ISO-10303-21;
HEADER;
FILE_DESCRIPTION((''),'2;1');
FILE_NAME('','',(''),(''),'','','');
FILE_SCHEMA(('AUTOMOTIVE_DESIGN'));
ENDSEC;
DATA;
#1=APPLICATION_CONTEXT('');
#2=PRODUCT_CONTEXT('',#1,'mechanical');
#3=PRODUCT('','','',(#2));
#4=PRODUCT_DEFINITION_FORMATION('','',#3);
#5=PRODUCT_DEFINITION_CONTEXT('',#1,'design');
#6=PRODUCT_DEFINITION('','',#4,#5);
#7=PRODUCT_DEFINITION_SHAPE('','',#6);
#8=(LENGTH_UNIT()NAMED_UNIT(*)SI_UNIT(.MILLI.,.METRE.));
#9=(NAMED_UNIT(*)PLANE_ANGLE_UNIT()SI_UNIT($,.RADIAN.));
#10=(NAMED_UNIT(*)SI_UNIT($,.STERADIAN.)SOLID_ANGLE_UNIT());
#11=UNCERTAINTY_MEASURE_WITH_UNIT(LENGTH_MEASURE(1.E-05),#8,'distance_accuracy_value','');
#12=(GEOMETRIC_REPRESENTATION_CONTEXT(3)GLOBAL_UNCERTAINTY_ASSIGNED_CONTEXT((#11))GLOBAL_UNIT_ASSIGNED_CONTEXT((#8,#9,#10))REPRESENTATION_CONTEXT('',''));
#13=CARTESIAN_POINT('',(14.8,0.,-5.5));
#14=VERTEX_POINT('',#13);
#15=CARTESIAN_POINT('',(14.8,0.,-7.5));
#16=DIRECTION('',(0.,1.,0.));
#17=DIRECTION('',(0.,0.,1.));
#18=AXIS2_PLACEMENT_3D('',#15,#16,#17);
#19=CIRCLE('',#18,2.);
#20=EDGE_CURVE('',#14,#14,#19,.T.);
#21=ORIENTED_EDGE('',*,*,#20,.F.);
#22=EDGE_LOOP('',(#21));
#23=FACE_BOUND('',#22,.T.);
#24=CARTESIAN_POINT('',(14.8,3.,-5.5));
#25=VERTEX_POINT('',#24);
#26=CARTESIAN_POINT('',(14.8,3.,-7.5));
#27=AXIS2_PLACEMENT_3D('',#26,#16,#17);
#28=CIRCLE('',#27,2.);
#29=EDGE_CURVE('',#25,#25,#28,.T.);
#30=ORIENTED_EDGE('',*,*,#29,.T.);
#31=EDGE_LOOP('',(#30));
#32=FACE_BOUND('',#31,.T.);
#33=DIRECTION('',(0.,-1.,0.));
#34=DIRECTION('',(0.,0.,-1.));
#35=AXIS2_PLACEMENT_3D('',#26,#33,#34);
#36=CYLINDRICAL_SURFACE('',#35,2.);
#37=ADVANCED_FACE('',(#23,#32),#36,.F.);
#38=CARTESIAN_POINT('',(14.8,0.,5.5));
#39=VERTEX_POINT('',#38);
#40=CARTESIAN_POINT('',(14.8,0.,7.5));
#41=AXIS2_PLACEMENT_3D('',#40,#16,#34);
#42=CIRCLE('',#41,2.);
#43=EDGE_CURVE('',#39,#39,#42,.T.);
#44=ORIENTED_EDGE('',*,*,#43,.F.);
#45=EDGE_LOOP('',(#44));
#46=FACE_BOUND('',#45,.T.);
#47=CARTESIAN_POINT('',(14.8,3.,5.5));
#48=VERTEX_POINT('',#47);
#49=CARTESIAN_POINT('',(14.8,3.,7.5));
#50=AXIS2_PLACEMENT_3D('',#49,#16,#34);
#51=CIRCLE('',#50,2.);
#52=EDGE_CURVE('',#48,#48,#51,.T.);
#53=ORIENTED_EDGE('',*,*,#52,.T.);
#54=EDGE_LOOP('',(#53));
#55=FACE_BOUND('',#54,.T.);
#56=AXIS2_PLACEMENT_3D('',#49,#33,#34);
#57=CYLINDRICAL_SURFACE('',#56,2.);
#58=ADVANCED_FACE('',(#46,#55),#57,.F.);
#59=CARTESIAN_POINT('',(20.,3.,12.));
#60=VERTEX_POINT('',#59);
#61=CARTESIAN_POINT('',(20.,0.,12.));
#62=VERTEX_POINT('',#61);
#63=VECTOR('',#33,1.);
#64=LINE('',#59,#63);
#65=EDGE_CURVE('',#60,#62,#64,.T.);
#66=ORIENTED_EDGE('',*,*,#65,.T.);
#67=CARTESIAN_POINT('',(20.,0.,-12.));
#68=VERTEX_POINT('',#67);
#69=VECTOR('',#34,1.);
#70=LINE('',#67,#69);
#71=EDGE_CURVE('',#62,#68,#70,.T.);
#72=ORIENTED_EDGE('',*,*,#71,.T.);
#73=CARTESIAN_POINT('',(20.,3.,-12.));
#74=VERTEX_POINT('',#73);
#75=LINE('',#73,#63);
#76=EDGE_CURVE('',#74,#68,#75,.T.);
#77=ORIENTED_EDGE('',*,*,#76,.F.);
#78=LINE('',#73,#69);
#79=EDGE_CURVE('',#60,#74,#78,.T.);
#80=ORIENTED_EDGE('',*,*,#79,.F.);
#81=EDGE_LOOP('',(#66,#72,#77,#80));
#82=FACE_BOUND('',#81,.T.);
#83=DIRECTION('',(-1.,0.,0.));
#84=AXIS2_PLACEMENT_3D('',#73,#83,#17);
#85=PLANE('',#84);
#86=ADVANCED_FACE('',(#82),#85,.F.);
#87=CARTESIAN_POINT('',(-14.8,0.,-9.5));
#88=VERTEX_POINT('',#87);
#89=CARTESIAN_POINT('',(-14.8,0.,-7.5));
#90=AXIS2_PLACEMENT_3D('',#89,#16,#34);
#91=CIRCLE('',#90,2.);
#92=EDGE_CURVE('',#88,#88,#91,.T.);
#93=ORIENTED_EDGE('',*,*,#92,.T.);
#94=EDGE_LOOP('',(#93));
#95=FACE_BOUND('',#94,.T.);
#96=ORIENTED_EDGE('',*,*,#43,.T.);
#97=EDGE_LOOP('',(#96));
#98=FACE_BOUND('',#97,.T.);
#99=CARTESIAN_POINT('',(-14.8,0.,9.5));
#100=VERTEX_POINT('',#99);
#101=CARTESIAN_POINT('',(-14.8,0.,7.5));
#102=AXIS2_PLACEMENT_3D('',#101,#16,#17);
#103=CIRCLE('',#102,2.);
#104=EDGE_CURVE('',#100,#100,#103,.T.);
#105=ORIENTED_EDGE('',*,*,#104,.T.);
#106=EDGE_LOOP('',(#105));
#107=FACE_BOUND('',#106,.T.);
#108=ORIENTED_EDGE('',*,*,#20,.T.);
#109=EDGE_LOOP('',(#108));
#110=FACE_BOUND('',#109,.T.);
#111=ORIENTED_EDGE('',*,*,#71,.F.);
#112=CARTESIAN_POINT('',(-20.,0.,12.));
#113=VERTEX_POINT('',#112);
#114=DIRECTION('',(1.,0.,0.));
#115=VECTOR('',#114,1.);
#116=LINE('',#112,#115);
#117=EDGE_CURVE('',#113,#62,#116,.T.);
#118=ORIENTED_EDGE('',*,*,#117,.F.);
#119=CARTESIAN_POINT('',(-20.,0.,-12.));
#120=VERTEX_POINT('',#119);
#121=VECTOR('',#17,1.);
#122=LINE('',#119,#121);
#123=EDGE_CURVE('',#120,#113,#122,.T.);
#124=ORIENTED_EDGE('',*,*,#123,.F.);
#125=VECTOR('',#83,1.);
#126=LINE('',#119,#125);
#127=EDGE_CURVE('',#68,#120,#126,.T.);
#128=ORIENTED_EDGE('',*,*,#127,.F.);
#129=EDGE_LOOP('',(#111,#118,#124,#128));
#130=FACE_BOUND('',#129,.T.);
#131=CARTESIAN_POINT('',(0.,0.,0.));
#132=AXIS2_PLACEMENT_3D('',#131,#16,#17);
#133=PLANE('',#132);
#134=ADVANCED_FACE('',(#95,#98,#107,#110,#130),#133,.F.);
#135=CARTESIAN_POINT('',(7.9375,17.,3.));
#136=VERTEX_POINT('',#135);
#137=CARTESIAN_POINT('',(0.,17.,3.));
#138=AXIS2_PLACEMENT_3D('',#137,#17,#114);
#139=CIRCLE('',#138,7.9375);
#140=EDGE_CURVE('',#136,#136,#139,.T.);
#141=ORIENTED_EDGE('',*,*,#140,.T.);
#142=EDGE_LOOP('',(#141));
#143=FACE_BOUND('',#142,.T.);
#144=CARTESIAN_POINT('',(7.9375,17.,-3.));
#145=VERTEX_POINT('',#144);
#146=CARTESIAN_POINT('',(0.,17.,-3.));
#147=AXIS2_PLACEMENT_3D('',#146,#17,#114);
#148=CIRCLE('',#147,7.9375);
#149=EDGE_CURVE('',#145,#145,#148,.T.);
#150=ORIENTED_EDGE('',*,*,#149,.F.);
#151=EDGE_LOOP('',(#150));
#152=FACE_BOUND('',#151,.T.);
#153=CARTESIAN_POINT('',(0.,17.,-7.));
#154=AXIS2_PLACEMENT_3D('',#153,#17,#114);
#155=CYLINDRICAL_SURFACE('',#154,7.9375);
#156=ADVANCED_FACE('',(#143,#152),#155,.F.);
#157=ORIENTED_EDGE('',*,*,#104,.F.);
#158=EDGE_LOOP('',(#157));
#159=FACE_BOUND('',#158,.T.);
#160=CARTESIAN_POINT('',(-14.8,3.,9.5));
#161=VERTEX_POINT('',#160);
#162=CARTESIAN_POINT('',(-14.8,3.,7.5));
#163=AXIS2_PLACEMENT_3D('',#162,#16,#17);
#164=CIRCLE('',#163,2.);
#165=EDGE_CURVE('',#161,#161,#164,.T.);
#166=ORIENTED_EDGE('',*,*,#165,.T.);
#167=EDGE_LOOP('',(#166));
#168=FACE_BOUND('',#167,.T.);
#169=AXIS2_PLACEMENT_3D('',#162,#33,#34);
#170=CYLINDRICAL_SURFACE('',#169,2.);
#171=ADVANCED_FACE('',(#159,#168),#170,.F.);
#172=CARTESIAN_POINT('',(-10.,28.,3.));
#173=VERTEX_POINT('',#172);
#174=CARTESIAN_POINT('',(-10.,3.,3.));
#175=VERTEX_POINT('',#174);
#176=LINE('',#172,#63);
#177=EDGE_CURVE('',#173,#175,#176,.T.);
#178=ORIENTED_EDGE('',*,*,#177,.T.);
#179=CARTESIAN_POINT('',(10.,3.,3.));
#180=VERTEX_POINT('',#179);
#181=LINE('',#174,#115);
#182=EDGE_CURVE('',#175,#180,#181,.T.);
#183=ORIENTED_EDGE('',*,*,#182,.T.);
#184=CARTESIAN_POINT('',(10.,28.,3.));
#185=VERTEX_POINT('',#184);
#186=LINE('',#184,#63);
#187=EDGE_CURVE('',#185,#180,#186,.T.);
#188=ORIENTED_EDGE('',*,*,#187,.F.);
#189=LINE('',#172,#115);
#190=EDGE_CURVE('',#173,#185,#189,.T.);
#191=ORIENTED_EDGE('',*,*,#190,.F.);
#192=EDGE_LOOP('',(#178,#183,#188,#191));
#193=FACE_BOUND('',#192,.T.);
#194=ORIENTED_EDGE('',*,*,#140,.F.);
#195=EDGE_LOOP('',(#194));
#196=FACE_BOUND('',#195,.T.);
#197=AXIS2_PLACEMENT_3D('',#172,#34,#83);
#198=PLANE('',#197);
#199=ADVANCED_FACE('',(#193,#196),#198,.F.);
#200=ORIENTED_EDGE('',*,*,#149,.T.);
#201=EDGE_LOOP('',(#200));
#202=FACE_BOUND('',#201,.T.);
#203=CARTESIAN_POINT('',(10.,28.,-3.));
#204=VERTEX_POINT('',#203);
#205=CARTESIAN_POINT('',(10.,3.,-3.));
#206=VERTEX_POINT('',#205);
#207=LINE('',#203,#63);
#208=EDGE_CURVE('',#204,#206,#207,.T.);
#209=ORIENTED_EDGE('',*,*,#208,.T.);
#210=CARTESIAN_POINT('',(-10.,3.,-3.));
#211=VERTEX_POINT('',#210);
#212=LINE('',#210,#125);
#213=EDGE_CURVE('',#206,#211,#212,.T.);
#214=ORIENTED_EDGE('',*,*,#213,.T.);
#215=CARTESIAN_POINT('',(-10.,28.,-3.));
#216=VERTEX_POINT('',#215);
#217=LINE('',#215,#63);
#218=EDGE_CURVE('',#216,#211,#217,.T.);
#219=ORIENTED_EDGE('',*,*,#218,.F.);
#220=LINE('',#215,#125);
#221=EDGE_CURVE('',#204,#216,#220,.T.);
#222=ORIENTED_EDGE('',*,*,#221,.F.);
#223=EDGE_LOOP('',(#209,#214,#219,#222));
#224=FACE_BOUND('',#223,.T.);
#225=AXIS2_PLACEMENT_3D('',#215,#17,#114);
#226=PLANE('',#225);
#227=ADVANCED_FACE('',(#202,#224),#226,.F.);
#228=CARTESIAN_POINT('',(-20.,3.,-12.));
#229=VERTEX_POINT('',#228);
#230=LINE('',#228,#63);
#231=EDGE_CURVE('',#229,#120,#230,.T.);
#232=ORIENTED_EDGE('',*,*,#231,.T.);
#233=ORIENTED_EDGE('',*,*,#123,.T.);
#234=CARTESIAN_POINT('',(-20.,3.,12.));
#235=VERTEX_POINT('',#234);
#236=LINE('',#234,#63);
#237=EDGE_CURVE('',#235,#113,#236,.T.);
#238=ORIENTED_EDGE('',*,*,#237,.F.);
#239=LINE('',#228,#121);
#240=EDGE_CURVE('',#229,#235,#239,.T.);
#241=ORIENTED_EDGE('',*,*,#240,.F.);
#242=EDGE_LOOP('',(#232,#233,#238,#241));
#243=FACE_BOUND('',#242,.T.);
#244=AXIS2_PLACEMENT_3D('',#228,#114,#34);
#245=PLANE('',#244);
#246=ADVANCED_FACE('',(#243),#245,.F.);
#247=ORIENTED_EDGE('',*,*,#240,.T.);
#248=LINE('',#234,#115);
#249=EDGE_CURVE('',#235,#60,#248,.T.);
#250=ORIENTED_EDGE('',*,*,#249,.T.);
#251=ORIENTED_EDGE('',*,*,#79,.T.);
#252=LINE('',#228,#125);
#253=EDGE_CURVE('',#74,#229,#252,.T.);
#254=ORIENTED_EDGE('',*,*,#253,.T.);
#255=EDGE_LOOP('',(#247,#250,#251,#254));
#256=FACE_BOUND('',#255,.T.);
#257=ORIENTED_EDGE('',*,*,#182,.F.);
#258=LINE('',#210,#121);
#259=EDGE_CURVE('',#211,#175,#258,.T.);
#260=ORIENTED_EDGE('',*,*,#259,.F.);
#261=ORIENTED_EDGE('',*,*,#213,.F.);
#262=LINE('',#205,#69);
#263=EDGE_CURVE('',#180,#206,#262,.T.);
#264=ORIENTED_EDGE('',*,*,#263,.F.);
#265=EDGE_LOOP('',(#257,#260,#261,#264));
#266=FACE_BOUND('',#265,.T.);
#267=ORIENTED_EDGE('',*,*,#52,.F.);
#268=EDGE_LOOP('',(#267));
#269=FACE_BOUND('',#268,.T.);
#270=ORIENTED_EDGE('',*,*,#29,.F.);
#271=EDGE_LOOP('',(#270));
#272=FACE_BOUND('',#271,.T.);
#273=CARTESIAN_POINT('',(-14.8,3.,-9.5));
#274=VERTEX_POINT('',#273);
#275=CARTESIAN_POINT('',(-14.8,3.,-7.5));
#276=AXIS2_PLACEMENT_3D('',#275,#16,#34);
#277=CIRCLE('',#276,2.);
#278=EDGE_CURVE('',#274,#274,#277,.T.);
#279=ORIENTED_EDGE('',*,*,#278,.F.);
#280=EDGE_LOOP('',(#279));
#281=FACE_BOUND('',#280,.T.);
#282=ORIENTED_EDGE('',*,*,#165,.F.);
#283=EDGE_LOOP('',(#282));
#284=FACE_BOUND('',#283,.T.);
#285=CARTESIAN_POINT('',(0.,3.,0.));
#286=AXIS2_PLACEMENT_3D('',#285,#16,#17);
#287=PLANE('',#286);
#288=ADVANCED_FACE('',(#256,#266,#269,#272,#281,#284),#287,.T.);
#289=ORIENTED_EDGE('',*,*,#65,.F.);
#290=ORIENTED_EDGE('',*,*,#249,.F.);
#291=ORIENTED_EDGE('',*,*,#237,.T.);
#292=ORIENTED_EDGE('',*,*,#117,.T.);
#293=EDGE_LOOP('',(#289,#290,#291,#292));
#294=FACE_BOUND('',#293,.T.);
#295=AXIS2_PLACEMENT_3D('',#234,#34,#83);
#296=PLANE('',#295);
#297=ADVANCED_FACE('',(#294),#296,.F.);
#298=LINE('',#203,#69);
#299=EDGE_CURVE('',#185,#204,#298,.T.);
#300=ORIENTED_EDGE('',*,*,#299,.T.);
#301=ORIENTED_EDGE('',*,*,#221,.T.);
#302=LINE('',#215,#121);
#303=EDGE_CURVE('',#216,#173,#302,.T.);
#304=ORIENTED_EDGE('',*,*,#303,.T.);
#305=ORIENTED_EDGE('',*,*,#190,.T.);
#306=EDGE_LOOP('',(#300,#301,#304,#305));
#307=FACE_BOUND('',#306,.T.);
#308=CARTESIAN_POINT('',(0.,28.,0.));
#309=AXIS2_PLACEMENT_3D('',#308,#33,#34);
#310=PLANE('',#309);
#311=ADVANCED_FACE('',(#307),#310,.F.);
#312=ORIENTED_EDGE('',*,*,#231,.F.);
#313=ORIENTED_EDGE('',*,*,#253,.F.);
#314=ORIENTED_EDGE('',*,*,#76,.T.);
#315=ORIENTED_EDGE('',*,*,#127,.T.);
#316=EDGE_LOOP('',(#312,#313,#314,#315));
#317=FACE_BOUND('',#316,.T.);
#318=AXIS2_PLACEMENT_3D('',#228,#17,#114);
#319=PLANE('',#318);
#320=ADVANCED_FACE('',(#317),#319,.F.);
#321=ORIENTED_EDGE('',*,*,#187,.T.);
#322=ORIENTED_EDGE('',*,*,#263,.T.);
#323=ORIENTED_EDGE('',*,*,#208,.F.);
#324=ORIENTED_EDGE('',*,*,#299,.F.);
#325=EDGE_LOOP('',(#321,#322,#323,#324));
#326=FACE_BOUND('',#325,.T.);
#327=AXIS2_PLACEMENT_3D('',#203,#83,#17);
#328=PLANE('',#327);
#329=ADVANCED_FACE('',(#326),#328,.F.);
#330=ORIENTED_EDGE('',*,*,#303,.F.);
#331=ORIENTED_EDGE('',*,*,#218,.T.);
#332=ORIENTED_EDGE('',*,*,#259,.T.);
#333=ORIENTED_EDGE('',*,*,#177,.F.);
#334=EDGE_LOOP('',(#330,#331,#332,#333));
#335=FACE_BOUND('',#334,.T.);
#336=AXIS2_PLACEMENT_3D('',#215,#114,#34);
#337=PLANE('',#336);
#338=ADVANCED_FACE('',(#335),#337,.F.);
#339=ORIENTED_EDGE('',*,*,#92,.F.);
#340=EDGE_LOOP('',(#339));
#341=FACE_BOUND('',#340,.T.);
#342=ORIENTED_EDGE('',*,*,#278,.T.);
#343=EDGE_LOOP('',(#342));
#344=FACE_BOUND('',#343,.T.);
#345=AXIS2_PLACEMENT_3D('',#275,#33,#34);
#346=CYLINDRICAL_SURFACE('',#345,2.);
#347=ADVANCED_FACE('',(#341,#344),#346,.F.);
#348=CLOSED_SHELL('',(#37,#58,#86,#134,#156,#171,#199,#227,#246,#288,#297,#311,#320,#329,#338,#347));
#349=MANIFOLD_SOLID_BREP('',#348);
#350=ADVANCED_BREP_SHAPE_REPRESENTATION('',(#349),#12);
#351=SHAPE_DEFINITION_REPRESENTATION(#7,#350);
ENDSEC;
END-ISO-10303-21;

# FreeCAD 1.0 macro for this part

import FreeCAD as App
import Part
import Sketcher
Q = App.Units.Quantity

doc = App.newDocument("Part")
body = doc.addObject("PartDesign::Body", "Body")

# Sketch on XZ plane
sketch1 = body.newObject("Sketcher::SketchObject", "Sketch")
sketch1.AttachmentSupport = (doc.getObject("XZ_Plane"), [""])
sketch1.MapMode = "FlatFace"
sketch1.addGeometry([
    Part.LineSegment(App.Vector(-20, -12, 0), App.Vector(-20, 12, 0)),  # 0
    Part.LineSegment(App.Vector(-20, 12, 0), App.Vector(20, 12, 0)),  # 1
    Part.LineSegment(App.Vector(20, 12, 0), App.Vector(20, -12, 0)),  # 2
    Part.LineSegment(App.Vector(20, -12, 0), App.Vector(-20, -12, 0)),  # 3
    Part.Circle(App.Vector(-14.8, 7.5, 0), App.Vector(0, 0, 1), 2),  # 4
    Part.Circle(App.Vector(14.8, 7.5, 0), App.Vector(0, 0, 1), 2),  # 5
    Part.Circle(App.Vector(-14.8, -7.5, 0), App.Vector(0, 0, 1), 2),  # 6
    Part.Circle(App.Vector(14.8, -7.5, 0), App.Vector(0, 0, 1), 2),  # 7
], False)
sketch1.addConstraint([
    Sketcher.Constraint("Coincident", 0, 2, 1, 1),
    Sketcher.Constraint("Coincident", 1, 2, 2, 1),
    Sketcher.Constraint("Coincident", 2, 2, 3, 1),
    Sketcher.Constraint("Coincident", 3, 2, 0, 1),
    Sketcher.Constraint("Vertical", 0),
    Sketcher.Constraint("Horizontal", 1),
    Sketcher.Constraint("Vertical", 2),
    Sketcher.Constraint("Horizontal", 3),
    Sketcher.Constraint("Equal", 4, 5),
    Sketcher.Constraint("Equal", 5, 6),
    Sketcher.Constraint("Equal", 6, 7),
    Sketcher.Constraint("Symmetric", 5, 3, 6, 3, -1, 1),
    Sketcher.Constraint("Symmetric", 4, 3, 7, 3, -1, 1),
    Sketcher.Constraint("Symmetric", 0, 2, 2, 2, -1, 1),
    Sketcher.Constraint("Symmetric", 4, 3, 5, 3, -2),
    Sketcher.Constraint("Diameter", 4, Q("4 mm")),
    Sketcher.Constraint("DistanceX", 1, 1, 1, 2, Q("40 mm")),
    Sketcher.Constraint("DistanceY", 0, 1, 0, 2, Q("24 mm")),
    Sketcher.Constraint("DistanceY", 6, 3, 4, 3, Q("15 mm")),
    Sketcher.Constraint("DistanceX", 4, 3, -1, 1, Q("14.8 mm")),
])
pad1 = body.newObject("PartDesign::Pad", "Pad")
pad1.Profile = sketch1
pad1.Length = 3
pad1.Reversed = True

# Sketch on XZ plane
sketch2 = body.newObject("Sketcher::SketchObject", "Sketch001")
sketch2.AttachmentSupport = (doc.getObject("XZ_Plane"), [""])
sketch2.MapMode = "FlatFace"
sketch2.AttachmentOffset = App.Placement(App.Vector(0, 0, -3), App.Rotation())
sketch2.addGeometry([
    Part.LineSegment(App.Vector(-10, -3, 0), App.Vector(-10, 3, 0)),
    Part.LineSegment(App.Vector(-10, 3, 0), App.Vector(10, 3, 0)),
    Part.LineSegment(App.Vector(10, 3, 0), App.Vector(10, -3, 0)),
    Part.LineSegment(App.Vector(10, -3, 0), App.Vector(-10, -3, 0)),
], False)
sketch2.addConstraint([
    Sketcher.Constraint("Coincident", 0, 2, 1, 1),
    Sketcher.Constraint("Coincident", 1, 2, 2, 1),
    Sketcher.Constraint("Coincident", 2, 2, 3, 1),
    Sketcher.Constraint("Coincident", 3, 2, 0, 1),
    Sketcher.Constraint("Vertical", 0),
    Sketcher.Constraint("Horizontal", 1),
    Sketcher.Constraint("Vertical", 2),
    Sketcher.Constraint("Horizontal", 3),
    Sketcher.Constraint("Symmetric", 0, 2, 2, 2, -1, 1),
    Sketcher.Constraint("DistanceX", 1, 1, 1, 2, Q("20 mm")),
    Sketcher.Constraint("DistanceY", 0, 1, 0, 2, Q("6 mm")),
])
pad2 = body.newObject("PartDesign::Pad", "Pad001")
pad2.Profile = sketch2
pad2.Length = 25
pad2.Reversed = True

# Sketch on XY plane
sketch3 = body.newObject("Sketcher::SketchObject", "Sketch002")
sketch3.AttachmentSupport = (doc.getObject("XY_Plane"), [""])
sketch3.MapMode = "FlatFace"
sketch3.AttachmentOffset = App.Placement(App.Vector(0, 0, 3), App.Rotation())
sketch3.addGeometry(Part.Circle(App.Vector(0, 17, 0), App.Vector(0, 0, 1), 8), False)
sketch3.addConstraint([
    Sketcher.Constraint("PointOnObject", 0, 3, -2),
    Sketcher.Constraint("Diameter", 0, Q("15.875 mm")),
    Sketcher.Constraint("DistanceY", -1, 1, 0, 3, Q("17 mm")),
])
pocket1 = body.newObject("PartDesign::Pocket", "Pocket")
pocket1.Profile = sketch3
pocket1.Length = 10

doc.recompute()
